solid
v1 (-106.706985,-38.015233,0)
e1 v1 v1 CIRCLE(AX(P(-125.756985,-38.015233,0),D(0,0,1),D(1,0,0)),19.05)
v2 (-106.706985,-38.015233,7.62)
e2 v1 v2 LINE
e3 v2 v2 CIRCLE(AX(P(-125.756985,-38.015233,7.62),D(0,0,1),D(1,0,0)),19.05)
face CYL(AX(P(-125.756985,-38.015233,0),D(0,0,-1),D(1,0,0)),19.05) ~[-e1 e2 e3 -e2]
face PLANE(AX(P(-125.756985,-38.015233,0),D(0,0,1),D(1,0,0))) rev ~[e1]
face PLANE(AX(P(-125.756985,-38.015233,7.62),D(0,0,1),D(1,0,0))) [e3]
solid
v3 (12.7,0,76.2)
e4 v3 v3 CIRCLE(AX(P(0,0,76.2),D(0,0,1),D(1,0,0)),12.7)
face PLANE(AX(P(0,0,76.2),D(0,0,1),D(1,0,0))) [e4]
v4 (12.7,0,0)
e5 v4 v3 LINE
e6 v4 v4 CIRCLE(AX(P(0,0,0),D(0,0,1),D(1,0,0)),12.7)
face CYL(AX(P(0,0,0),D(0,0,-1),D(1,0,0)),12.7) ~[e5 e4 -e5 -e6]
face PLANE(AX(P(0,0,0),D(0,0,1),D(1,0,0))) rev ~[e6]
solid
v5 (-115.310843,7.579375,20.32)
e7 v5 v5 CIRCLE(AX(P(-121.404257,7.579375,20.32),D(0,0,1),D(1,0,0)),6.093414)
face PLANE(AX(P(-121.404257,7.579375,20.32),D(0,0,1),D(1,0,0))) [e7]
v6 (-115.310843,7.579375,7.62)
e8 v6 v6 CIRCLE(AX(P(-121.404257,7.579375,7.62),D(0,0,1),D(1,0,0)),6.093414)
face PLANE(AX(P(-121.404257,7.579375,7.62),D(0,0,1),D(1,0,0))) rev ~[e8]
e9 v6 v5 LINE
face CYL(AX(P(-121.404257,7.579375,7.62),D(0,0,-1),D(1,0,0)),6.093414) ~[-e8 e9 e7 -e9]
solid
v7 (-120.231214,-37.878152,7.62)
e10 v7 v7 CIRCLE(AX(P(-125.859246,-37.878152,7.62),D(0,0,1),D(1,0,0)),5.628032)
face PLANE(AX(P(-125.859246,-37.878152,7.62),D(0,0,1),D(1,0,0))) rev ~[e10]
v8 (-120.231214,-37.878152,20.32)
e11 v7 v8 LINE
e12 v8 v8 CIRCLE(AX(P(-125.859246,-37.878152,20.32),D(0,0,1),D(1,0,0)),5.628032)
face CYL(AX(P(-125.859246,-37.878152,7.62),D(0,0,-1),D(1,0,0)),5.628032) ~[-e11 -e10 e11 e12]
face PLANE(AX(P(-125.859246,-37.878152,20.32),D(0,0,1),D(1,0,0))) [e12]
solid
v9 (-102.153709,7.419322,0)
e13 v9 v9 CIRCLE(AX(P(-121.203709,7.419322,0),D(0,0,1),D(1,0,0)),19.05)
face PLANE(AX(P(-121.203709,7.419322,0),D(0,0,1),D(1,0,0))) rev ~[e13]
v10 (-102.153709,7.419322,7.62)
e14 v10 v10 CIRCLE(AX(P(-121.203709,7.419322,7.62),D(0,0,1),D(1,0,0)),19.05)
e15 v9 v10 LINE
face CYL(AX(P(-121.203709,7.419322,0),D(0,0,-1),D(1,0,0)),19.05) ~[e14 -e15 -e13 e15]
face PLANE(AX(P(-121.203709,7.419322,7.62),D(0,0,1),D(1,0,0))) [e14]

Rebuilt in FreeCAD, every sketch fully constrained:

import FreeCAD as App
import Part
import Sketcher

V = App.Vector
Q = App.Units.Quantity

doc = App.newDocument("Part")
body = doc.addObject("PartDesign::Body", "Body")
body.AllowCompound = True

# Sketch on XY plane
sketch1 = body.newObject("Sketcher::SketchObject", "Sketch")
sketch1.AttachmentSupport = (doc.getObject("XY_Plane"), [""])
sketch1.MapMode = "FlatFace"
sketch1.addGeometry(Part.Circle(V(-121.203709, 7.419322, 0), V(0, 0, 1), 19.05), False)
sketch1.addGeometry(Part.Circle(V(-125.756985, -38.015233, 0), V(0, 0, 1), 19.05), False)
sketch1.addConstraint(Sketcher.Constraint("Equal", 0, 1))
sketch1.addConstraint(Sketcher.Constraint("Diameter", 0, Q("1.5 in")))
sketch1.addConstraint(Sketcher.Constraint("DistanceX", 0, 3, -1, 1, Q("121.203709 mm")))
sketch1.addConstraint(Sketcher.Constraint("DistanceY", -1, 1, 0, 3, Q("7.419322 mm")))
sketch1.addConstraint(Sketcher.Constraint("DistanceX", 1, 3, -1, 1, Q("125.756985 mm")))
sketch1.addConstraint(Sketcher.Constraint("DistanceY", 1, 3, -1, 1, Q("38.015233 mm")))
pad1 = body.newObject("PartDesign::Pad", "Pad")
pad1.Profile = sketch1
pad1.Length = Q("0.3 in")
body2 = doc.addObject("PartDesign::Body", "Body001")

# Sketch on XY plane
sketch2 = body2.newObject("Sketcher::SketchObject", "Sketch001")
sketch2.AttachmentSupport = (doc.getObject("XY_Plane001"), [""])
sketch2.MapMode = "FlatFace"
sketch2.addGeometry(Part.Circle(V(0, 0, 0), V(0, 0, 1), 12.7), False)
sketch2.addConstraint(Sketcher.Constraint("Coincident", 0, 3, -1, 1))
sketch2.addConstraint(Sketcher.Constraint("Diameter", 0, Q("1 in")))
pad2 = body2.newObject("PartDesign::Pad", "Pad001")
pad2.Profile = sketch2
pad2.Length = Q("3 in")
body3 = doc.addObject("PartDesign::Body", "Body002")
body3.AllowCompound = True

# Sketch on XY plane
sketch3 = body3.newObject("Sketcher::SketchObject", "Sketch002")
sketch3.AttachmentSupport = (doc.getObject("XY_Plane002"), [""])
sketch3.MapMode = "FlatFace"
sketch3.AttachmentOffset = App.Placement(V(0, 0, 0.3 * 25.4), App.Rotation())
sketch3.addGeometry(Part.Circle(V(-121.404257, 7.579375, 0), V(0, 0, 1), 6.093414), False)
sketch3.addGeometry(Part.Circle(V(-125.859246, -37.878152, 0), V(0, 0, 1), 5.628032), False)
sketch3.addConstraint(Sketcher.Constraint("Diameter", 0, Q("12.186828 mm")))
sketch3.addConstraint(Sketcher.Constraint("Diameter", 1, Q("11.256064 mm")))
sketch3.addConstraint(Sketcher.Constraint("DistanceX", 1, 3, 0, 3, Q("4.454989 mm")))
sketch3.addConstraint(Sketcher.Constraint("DistanceX", 0, 3, -1, 1, Q("121.404257 mm")))
sketch3.addConstraint(Sketcher.Constraint("DistanceY", -1, 1, 0, 3, Q("7.579375 mm")))
sketch3.addConstraint(Sketcher.Constraint("DistanceY", 1, 3, -1, 1, Q("37.878152 mm")))
pad3 = body3.newObject("PartDesign::Pad", "Pad002")
pad3.Profile = sketch3
pad3.Length = Q("0.5 in")

doc.recompute()
